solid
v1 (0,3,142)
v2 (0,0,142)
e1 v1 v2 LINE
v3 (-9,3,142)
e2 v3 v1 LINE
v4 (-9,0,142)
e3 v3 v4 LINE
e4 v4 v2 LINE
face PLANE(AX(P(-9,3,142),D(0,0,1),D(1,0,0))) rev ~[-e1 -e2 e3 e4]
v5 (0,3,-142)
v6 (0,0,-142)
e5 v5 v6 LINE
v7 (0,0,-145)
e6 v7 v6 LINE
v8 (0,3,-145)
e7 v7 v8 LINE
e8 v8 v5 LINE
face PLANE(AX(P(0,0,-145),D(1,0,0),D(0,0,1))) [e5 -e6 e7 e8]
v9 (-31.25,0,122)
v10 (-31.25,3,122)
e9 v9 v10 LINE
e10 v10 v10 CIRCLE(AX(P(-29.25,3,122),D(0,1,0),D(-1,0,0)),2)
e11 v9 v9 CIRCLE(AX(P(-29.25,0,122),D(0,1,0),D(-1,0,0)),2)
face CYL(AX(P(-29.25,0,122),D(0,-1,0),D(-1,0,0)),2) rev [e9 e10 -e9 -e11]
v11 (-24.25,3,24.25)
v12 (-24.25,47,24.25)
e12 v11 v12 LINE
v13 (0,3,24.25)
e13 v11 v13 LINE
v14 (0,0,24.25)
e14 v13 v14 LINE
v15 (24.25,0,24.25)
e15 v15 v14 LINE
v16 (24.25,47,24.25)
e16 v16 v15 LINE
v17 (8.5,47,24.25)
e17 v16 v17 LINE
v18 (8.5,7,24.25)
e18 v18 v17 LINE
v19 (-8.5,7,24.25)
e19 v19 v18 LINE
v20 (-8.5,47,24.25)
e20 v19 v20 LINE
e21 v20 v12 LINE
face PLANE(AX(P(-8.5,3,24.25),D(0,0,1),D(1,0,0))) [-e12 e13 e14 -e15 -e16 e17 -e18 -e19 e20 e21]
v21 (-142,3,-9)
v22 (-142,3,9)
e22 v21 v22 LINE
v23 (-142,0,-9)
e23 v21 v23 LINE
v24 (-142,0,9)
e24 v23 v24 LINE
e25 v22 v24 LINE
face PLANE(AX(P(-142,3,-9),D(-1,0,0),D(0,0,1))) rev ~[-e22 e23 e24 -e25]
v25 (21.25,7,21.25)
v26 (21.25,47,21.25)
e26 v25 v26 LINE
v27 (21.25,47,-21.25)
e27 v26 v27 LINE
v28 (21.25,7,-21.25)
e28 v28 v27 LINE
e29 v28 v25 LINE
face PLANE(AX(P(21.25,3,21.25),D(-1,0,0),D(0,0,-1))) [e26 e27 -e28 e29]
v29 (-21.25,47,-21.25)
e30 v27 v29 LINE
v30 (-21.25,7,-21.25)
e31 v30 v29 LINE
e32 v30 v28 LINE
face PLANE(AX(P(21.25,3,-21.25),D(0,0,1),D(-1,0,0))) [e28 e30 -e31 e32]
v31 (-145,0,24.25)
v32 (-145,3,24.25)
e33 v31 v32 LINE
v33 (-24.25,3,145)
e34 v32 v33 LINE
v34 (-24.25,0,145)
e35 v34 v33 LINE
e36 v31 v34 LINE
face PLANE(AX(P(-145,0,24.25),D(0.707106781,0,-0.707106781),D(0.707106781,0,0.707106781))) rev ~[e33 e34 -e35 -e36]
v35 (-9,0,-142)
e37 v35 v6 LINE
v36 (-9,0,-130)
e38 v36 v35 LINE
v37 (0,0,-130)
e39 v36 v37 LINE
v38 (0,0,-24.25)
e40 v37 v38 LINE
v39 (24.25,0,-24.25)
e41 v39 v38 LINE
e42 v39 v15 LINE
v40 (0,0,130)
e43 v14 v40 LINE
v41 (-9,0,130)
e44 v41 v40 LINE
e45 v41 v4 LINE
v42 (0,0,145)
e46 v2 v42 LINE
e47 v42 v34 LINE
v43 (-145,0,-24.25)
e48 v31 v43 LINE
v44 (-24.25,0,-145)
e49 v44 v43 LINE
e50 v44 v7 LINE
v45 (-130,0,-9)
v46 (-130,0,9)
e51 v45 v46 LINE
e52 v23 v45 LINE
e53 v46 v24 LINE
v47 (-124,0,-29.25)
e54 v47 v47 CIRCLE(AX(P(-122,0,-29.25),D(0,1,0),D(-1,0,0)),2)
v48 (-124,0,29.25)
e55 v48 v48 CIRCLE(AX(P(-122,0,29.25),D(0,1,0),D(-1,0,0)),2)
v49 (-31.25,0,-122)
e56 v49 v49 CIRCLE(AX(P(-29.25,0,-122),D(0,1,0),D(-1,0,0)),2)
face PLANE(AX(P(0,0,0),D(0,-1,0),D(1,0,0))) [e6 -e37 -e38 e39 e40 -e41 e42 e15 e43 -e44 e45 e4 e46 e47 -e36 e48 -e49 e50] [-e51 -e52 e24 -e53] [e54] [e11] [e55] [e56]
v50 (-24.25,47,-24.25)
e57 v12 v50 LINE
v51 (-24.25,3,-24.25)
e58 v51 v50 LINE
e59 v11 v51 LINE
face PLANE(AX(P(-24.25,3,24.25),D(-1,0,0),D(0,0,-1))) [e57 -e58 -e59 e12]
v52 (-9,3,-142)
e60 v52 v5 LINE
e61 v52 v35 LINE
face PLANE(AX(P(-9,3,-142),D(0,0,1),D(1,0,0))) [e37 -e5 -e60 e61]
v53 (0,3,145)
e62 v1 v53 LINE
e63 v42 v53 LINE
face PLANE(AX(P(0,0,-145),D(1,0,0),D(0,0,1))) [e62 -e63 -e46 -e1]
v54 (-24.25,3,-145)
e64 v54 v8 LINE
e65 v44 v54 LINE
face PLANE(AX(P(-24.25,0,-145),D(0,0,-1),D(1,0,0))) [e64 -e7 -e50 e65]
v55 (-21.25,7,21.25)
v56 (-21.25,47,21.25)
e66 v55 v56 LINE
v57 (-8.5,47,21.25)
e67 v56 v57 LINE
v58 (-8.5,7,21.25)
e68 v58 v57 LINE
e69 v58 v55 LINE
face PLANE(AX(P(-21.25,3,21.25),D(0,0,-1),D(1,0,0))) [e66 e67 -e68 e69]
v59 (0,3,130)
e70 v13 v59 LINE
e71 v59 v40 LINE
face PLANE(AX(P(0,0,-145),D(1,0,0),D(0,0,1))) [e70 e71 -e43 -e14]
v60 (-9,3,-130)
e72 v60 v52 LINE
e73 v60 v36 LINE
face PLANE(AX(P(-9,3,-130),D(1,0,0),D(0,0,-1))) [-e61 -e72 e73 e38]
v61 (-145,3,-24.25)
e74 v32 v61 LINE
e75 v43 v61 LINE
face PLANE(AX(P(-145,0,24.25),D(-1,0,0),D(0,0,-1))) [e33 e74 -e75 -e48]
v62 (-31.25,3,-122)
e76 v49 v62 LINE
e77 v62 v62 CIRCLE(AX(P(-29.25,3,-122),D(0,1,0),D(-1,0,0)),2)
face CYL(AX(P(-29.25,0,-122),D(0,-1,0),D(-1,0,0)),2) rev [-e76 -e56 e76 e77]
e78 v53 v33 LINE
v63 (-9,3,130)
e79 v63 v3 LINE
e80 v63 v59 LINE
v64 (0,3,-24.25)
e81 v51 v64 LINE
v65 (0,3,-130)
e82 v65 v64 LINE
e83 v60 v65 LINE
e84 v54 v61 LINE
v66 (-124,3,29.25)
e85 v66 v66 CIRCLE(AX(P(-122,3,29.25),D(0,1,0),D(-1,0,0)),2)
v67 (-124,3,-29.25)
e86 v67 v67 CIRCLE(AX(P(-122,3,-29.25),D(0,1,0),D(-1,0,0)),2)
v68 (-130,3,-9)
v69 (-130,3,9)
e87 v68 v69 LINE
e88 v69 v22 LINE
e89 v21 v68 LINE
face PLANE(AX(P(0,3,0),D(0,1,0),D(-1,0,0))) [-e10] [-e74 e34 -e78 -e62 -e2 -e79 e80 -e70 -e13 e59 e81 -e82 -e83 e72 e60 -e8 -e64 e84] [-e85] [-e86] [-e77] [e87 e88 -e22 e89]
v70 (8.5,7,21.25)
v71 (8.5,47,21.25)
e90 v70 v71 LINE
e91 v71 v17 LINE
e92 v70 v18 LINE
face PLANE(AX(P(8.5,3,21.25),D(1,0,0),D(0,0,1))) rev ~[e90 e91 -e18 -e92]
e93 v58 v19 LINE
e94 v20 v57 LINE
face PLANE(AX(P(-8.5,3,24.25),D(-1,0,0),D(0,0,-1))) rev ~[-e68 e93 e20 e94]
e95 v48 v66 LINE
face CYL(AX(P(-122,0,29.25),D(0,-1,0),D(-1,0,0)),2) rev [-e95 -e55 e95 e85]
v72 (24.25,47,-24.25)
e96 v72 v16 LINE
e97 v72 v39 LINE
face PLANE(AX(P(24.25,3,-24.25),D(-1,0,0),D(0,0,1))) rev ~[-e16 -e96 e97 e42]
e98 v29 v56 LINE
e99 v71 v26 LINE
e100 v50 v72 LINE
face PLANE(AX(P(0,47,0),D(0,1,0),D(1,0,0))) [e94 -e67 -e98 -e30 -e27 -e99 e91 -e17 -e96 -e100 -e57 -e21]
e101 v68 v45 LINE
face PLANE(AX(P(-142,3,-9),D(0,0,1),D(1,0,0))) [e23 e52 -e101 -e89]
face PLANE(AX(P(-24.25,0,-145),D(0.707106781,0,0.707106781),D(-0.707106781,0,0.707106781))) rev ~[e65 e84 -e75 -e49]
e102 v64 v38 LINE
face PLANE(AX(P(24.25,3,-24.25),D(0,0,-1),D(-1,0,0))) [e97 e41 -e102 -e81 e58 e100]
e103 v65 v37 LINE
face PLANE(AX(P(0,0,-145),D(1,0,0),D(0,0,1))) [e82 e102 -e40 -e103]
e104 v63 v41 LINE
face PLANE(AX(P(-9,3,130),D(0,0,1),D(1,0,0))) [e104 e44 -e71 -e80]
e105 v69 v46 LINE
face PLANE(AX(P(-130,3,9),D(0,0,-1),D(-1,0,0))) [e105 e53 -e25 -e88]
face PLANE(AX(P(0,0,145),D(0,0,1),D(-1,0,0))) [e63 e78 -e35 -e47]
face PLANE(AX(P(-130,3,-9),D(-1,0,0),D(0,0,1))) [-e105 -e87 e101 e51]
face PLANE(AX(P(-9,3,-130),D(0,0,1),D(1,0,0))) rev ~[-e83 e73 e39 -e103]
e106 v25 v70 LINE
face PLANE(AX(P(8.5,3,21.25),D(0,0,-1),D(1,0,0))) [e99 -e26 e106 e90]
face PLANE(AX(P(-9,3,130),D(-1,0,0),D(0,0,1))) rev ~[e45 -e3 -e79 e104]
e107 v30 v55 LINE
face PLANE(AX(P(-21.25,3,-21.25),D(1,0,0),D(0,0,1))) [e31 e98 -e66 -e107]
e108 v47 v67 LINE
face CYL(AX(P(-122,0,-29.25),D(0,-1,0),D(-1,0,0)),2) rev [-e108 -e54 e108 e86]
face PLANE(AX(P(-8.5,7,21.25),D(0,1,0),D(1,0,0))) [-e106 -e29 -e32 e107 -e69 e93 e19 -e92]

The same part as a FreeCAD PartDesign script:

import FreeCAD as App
import Part
import Sketcher
from FreeCAD import Vector


def add_polygon(sketch, points):
    """Adds a closed chain of lines whose ends are joined by coincident constraints."""
    first, n = sketch.GeometryCount, len(points)
    for a, b in zip(points, points[1:] + points[:1]):
        sketch.addGeometry(Part.LineSegment(App.Vector(*a, 0), App.Vector(*b, 0)), False)
    for i in range(n):
        sketch.addConstraint(Sketcher.Constraint("Coincident", first + i, 2, first + (i + 1) % n, 1))

doc = App.newDocument("Part")
body = doc.addObject("PartDesign::Body", "Body")

# Sketch on XZ plane
sketch1 = body.newObject("Sketcher::SketchObject", "Sketch")
sketch1.AttachmentSupport = (doc.getObject("XZ_Plane"), [""])
sketch1.MapMode = "FlatFace"
add_polygon(sketch1, [(-24.25, 145), (0, 145), (0, -145), (-24.25, -145), (-145, -24.25), (-145, 24.25)])  # lines 0-5
sketch1.addGeometry(Part.Circle(Vector(-29.25, -122, 0), Vector(0, 0, 1), 2), False)  # 6
sketch1.addGeometry(Part.Circle(Vector(-122, -29.25, 0), Vector(0, 0, 1), 2), False)  # 7
sketch1.addGeometry(Part.Circle(Vector(-29.25, 122, 0), Vector(0, 0, 1), 2), False)  # 8
sketch1.addGeometry(Part.Circle(Vector(-122, 29.25, 0), Vector(0, 0, 1), 2), False)  # 9
sketch1.addConstraint([
    Sketcher.Constraint("Horizontal", 0),
    Sketcher.Constraint("Vertical", 1),
    Sketcher.Constraint("Horizontal", 2),
    Sketcher.Constraint("Vertical", 4),
    Sketcher.Constraint("Equal", 6, 7),
    Sketcher.Constraint("Equal", 7, 8),
    Sketcher.Constraint("Equal", 8, 9),
    Sketcher.Constraint("Symmetric", 0, 2, 1, 2, -1, 1),
    Sketcher.Constraint("Symmetric", 6, 3, 8, 3, -1),
    Sketcher.Constraint("Symmetric", 7, 3, 9, 3, -1),
    Sketcher.Constraint("Perpendicular", 3, 5),
    Sketcher.Constraint("Vertical", 2, 2, 5, 2),
    Sketcher.Constraint("Equal", 3, 5),
    Sketcher.Constraint("Diameter", 6, 4.0),
    Sketcher.Constraint("DistanceY", 1, 2, 1, 1, 290.0),
    Sketcher.Constraint("DistanceY", 4, 1, 4, 2, 48.5),
    Sketcher.Constraint("DistanceY", 6, 3, -1, 1, 122.0),
    Sketcher.Constraint("DistanceX", 7, 3, -1, 1, 122.0),
    Sketcher.Constraint("DistanceX", 3, 2, -1, 1, 145.0),
    Sketcher.Constraint("DistanceX", 6, 3, 2, 2, 5.0),
    Sketcher.Constraint("DistanceY", 7, 3, 3, 2, 5.0),
])
pad1 = body.newObject("PartDesign::Pad", "Pad")
pad1.Profile = sketch1
pad1.Length = 3
pad1.Reversed = True

# Sketch on XZ plane
sketch2 = body.newObject("Sketcher::SketchObject", "Sketch001")
sketch2.AttachmentSupport = (doc.getObject("XZ_Plane"), [""])
sketch2.MapMode = "FlatFace"
sketch2.AttachmentOffset = App.Placement(Vector(0, 0, -3), App.Rotation())
add_polygon(sketch2, [(21.25, -21.25), (21.25, 21.25), (8.5, 21.25), (8.5, 24.25), (24.25, 24.25), (24.25, -24.25), (-24.25, -24.25), (-24.25, 24.25), (-8.5, 24.25), (-8.5, 21.25), (-21.25, 21.25), (-21.25, -21.25)])  # lines 0-11
sketch2.addConstraint([
    Sketcher.Constraint("Vertical", 0),
    Sketcher.Constraint("Horizontal", 1),
    Sketcher.Constraint("Vertical", 2),
    Sketcher.Constraint("Horizontal", 3),
    Sketcher.Constraint("Vertical", 4),
    Sketcher.Constraint("Horizontal", 5),
    Sketcher.Constraint("Vertical", 6),
    Sketcher.Constraint("Horizontal", 7),
    Sketcher.Constraint("Vertical", 8),
    Sketcher.Constraint("Horizontal", 9),
    Sketcher.Constraint("Vertical", 10),
    Sketcher.Constraint("Horizontal", 11),
    Sketcher.Constraint("Symmetric", 3, 2, 5, 2, -1, 1),
    Sketcher.Constraint("Symmetric", 0, 2, 10, 2, -1, 1),
    Sketcher.Constraint("Symmetric", 2, 2, 7, 2, -2),
    Sketcher.Constraint("Horizontal", 1, 2, 8, 2),
    Sketcher.Constraint("Equal", 11, 0),
    Sketcher.Constraint("Equal", 5, 4),
    Sketcher.Constraint("DistanceX", 5, 2, 5, 1, 48.5),
    Sketcher.Constraint("DistanceX", 11, 1, 11, 2, 42.5),
    Sketcher.Constraint("DistanceX", 7, 2, 2, 2, 17.0),
])
pad2 = body.newObject("PartDesign::Pad", "Pad001")
pad2.Profile = sketch2
pad2.Length = 44
pad2.Reversed = True

# Sketch on XZ plane
sketch3 = body.newObject("Sketcher::SketchObject", "Sketch002")
sketch3.AttachmentSupport = (doc.getObject("XZ_Plane"), [""])
sketch3.MapMode = "FlatFace"
sketch3.AttachmentOffset = App.Placement(Vector(0, 0, -3), App.Rotation())
add_polygon(sketch3, [(21.25, -21.25), (-21.25, -21.25), (-21.25, 21.25), (21.25, 21.25)])  # lines 0-3
sketch3.addConstraint([
    Sketcher.Constraint("Horizontal", 0),
    Sketcher.Constraint("Vertical", 1),
    Sketcher.Constraint("Horizontal", 2),
    Sketcher.Constraint("Vertical", 3),
    Sketcher.Constraint("Symmetric", 0, 2, 2, 2, -1, 1),
    Sketcher.Constraint("Equal", 2, 1),
    Sketcher.Constraint("DistanceX", 0, 2, 0, 1, 42.5),
])
pad3 = body.newObject("PartDesign::Pad", "Pad002")
pad3.Profile = sketch3
pad3.Length = 4
pad3.Reversed = True

# Sketch on XZ plane
sketch4 = body.newObject("Sketcher::SketchObject", "Sketch003")
sketch4.AttachmentSupport = (doc.getObject("XZ_Plane"), [""])
sketch4.MapMode = "FlatFace"
sketch4.AttachmentOffset = App.Placement(Vector(0, 0, -3), App.Rotation())
add_polygon(sketch4, [(-130, -9), (-142, -9), (-142, 9), (-130, 9)])  # lines 0-3
add_polygon(sketch4, [(0, 130), (-9, 130), (-9, 142), (0, 142)])  # lines 4-7
add_polygon(sketch4, [(-9, -130), (0, -130), (0, -142), (-9, -142)])  # lines 8-11
sketch4.addConstraint([
    Sketcher.Constraint("Horizontal", 0),
    Sketcher.Constraint("Vertical", 1),
    Sketcher.Constraint("Horizontal", 2),
    Sketcher.Constraint("Vertical", 3),
    Sketcher.Constraint("Horizontal", 4),
    Sketcher.Constraint("Vertical", 5),
    Sketcher.Constraint("Horizontal", 6),
    Sketcher.Constraint("Vertical", 7),
    Sketcher.Constraint("Horizontal", 8),
    Sketcher.Constraint("Vertical", 9),
    Sketcher.Constraint("Horizontal", 10),
    Sketcher.Constraint("Vertical", 11),
    Sketcher.Constraint("Symmetric", 7, 2, 8, 2, -1, 1),
    Sketcher.Constraint("Symmetric", 6, 2, 9, 2, -1),
    Sketcher.Constraint("Vertical", 5, 2, 10, 2),
    Sketcher.Constraint("Equal", 2, 5),
    Sketcher.Constraint("DistanceX", 0, 2, 0, 1, 12.0),
    Sketcher.Constraint("DistanceX", 4, 2, 4, 1, 9.0),
    Sketcher.Constraint("DistanceY", 1, 1, 1, 2, 18.0),
    Sketcher.Constraint("DistanceX", 0, 2, -1, 1, 142.0),
    Sketcher.Constraint("DistanceY", 0, 2, -1, 1, 9.0),
    Sketcher.Constraint("DistanceY", -1, 1, 4, 2, 130.0),
])
pocket1 = body.newObject("PartDesign::Pocket", "Pocket")
pocket1.Profile = sketch4
pocket1.Length = 3
pocket1.Reversed = True

# Sketch on XZ plane
sketch5 = body.newObject("Sketcher::SketchObject", "Sketch004")
sketch5.AttachmentSupport = (doc.getObject("XZ_Plane"), [""])
sketch5.MapMode = "FlatFace"
sketch5.AttachmentOffset = App.Placement(Vector(0, 0, -3), App.Rotation())
add_polygon(sketch5, [(0, -24.25), (24.25, -24.25), (24.25, 24.25), (0, 24.25)])  # lines 0-3
sketch5.addConstraint([
    Sketcher.Constraint("Horizontal", 0),
    Sketcher.Constraint("Vertical", 1),
    Sketcher.Constraint("Horizontal", 2),
    Sketcher.Constraint("Vertical", 3),
    Sketcher.Constraint("Symmetric", 2, 2, 3, 2, -1, 1),
    Sketcher.Constraint("DistanceY", 1, 1, 1, 2, 48.5),
    Sketcher.Constraint("DistanceX", 0, 1, 0, 2, 24.25),
])
pad4 = body.newObject("PartDesign::Pad", "Pad003")
pad4.Profile = sketch5
pad4.Length = 3

# Sketch on XY plane
sketch6 = body.newObject("Sketcher::SketchObject", "Sketch005")
sketch6.AttachmentSupport = (doc.getObject("XY_Plane"), [""])
sketch6.MapMode = "FlatFace"
sketch6.AttachmentOffset = App.Placement(Vector(0, 0, 21.25), App.Rotation())
add_polygon(sketch6, [(-8.5, 7), (-8.5, 3), (8.5, 3), (8.5, 7)])  # lines 0-3
sketch6.addConstraint([
    Sketcher.Constraint("Vertical", 0),
    Sketcher.Constraint("Horizontal", 1),
    Sketcher.Constraint("Vertical", 2),
    Sketcher.Constraint("Horizontal", 3),
    Sketcher.Constraint("DistanceX", 1, 1, 1, 2, 17.0),
    Sketcher.Constraint("DistanceY", 0, 2, 0, 1, 4.0),
    Sketcher.Constraint("DistanceY", -1, 1, 0, 2, 3.0),
    Sketcher.Constraint("DistanceX", 0, 2, -1, 1, 8.5),
])
pad5 = body.newObject("PartDesign::Pad", "Pad004")
pad5.Profile = sketch6
pad5.Length = 3

doc.recompute()
